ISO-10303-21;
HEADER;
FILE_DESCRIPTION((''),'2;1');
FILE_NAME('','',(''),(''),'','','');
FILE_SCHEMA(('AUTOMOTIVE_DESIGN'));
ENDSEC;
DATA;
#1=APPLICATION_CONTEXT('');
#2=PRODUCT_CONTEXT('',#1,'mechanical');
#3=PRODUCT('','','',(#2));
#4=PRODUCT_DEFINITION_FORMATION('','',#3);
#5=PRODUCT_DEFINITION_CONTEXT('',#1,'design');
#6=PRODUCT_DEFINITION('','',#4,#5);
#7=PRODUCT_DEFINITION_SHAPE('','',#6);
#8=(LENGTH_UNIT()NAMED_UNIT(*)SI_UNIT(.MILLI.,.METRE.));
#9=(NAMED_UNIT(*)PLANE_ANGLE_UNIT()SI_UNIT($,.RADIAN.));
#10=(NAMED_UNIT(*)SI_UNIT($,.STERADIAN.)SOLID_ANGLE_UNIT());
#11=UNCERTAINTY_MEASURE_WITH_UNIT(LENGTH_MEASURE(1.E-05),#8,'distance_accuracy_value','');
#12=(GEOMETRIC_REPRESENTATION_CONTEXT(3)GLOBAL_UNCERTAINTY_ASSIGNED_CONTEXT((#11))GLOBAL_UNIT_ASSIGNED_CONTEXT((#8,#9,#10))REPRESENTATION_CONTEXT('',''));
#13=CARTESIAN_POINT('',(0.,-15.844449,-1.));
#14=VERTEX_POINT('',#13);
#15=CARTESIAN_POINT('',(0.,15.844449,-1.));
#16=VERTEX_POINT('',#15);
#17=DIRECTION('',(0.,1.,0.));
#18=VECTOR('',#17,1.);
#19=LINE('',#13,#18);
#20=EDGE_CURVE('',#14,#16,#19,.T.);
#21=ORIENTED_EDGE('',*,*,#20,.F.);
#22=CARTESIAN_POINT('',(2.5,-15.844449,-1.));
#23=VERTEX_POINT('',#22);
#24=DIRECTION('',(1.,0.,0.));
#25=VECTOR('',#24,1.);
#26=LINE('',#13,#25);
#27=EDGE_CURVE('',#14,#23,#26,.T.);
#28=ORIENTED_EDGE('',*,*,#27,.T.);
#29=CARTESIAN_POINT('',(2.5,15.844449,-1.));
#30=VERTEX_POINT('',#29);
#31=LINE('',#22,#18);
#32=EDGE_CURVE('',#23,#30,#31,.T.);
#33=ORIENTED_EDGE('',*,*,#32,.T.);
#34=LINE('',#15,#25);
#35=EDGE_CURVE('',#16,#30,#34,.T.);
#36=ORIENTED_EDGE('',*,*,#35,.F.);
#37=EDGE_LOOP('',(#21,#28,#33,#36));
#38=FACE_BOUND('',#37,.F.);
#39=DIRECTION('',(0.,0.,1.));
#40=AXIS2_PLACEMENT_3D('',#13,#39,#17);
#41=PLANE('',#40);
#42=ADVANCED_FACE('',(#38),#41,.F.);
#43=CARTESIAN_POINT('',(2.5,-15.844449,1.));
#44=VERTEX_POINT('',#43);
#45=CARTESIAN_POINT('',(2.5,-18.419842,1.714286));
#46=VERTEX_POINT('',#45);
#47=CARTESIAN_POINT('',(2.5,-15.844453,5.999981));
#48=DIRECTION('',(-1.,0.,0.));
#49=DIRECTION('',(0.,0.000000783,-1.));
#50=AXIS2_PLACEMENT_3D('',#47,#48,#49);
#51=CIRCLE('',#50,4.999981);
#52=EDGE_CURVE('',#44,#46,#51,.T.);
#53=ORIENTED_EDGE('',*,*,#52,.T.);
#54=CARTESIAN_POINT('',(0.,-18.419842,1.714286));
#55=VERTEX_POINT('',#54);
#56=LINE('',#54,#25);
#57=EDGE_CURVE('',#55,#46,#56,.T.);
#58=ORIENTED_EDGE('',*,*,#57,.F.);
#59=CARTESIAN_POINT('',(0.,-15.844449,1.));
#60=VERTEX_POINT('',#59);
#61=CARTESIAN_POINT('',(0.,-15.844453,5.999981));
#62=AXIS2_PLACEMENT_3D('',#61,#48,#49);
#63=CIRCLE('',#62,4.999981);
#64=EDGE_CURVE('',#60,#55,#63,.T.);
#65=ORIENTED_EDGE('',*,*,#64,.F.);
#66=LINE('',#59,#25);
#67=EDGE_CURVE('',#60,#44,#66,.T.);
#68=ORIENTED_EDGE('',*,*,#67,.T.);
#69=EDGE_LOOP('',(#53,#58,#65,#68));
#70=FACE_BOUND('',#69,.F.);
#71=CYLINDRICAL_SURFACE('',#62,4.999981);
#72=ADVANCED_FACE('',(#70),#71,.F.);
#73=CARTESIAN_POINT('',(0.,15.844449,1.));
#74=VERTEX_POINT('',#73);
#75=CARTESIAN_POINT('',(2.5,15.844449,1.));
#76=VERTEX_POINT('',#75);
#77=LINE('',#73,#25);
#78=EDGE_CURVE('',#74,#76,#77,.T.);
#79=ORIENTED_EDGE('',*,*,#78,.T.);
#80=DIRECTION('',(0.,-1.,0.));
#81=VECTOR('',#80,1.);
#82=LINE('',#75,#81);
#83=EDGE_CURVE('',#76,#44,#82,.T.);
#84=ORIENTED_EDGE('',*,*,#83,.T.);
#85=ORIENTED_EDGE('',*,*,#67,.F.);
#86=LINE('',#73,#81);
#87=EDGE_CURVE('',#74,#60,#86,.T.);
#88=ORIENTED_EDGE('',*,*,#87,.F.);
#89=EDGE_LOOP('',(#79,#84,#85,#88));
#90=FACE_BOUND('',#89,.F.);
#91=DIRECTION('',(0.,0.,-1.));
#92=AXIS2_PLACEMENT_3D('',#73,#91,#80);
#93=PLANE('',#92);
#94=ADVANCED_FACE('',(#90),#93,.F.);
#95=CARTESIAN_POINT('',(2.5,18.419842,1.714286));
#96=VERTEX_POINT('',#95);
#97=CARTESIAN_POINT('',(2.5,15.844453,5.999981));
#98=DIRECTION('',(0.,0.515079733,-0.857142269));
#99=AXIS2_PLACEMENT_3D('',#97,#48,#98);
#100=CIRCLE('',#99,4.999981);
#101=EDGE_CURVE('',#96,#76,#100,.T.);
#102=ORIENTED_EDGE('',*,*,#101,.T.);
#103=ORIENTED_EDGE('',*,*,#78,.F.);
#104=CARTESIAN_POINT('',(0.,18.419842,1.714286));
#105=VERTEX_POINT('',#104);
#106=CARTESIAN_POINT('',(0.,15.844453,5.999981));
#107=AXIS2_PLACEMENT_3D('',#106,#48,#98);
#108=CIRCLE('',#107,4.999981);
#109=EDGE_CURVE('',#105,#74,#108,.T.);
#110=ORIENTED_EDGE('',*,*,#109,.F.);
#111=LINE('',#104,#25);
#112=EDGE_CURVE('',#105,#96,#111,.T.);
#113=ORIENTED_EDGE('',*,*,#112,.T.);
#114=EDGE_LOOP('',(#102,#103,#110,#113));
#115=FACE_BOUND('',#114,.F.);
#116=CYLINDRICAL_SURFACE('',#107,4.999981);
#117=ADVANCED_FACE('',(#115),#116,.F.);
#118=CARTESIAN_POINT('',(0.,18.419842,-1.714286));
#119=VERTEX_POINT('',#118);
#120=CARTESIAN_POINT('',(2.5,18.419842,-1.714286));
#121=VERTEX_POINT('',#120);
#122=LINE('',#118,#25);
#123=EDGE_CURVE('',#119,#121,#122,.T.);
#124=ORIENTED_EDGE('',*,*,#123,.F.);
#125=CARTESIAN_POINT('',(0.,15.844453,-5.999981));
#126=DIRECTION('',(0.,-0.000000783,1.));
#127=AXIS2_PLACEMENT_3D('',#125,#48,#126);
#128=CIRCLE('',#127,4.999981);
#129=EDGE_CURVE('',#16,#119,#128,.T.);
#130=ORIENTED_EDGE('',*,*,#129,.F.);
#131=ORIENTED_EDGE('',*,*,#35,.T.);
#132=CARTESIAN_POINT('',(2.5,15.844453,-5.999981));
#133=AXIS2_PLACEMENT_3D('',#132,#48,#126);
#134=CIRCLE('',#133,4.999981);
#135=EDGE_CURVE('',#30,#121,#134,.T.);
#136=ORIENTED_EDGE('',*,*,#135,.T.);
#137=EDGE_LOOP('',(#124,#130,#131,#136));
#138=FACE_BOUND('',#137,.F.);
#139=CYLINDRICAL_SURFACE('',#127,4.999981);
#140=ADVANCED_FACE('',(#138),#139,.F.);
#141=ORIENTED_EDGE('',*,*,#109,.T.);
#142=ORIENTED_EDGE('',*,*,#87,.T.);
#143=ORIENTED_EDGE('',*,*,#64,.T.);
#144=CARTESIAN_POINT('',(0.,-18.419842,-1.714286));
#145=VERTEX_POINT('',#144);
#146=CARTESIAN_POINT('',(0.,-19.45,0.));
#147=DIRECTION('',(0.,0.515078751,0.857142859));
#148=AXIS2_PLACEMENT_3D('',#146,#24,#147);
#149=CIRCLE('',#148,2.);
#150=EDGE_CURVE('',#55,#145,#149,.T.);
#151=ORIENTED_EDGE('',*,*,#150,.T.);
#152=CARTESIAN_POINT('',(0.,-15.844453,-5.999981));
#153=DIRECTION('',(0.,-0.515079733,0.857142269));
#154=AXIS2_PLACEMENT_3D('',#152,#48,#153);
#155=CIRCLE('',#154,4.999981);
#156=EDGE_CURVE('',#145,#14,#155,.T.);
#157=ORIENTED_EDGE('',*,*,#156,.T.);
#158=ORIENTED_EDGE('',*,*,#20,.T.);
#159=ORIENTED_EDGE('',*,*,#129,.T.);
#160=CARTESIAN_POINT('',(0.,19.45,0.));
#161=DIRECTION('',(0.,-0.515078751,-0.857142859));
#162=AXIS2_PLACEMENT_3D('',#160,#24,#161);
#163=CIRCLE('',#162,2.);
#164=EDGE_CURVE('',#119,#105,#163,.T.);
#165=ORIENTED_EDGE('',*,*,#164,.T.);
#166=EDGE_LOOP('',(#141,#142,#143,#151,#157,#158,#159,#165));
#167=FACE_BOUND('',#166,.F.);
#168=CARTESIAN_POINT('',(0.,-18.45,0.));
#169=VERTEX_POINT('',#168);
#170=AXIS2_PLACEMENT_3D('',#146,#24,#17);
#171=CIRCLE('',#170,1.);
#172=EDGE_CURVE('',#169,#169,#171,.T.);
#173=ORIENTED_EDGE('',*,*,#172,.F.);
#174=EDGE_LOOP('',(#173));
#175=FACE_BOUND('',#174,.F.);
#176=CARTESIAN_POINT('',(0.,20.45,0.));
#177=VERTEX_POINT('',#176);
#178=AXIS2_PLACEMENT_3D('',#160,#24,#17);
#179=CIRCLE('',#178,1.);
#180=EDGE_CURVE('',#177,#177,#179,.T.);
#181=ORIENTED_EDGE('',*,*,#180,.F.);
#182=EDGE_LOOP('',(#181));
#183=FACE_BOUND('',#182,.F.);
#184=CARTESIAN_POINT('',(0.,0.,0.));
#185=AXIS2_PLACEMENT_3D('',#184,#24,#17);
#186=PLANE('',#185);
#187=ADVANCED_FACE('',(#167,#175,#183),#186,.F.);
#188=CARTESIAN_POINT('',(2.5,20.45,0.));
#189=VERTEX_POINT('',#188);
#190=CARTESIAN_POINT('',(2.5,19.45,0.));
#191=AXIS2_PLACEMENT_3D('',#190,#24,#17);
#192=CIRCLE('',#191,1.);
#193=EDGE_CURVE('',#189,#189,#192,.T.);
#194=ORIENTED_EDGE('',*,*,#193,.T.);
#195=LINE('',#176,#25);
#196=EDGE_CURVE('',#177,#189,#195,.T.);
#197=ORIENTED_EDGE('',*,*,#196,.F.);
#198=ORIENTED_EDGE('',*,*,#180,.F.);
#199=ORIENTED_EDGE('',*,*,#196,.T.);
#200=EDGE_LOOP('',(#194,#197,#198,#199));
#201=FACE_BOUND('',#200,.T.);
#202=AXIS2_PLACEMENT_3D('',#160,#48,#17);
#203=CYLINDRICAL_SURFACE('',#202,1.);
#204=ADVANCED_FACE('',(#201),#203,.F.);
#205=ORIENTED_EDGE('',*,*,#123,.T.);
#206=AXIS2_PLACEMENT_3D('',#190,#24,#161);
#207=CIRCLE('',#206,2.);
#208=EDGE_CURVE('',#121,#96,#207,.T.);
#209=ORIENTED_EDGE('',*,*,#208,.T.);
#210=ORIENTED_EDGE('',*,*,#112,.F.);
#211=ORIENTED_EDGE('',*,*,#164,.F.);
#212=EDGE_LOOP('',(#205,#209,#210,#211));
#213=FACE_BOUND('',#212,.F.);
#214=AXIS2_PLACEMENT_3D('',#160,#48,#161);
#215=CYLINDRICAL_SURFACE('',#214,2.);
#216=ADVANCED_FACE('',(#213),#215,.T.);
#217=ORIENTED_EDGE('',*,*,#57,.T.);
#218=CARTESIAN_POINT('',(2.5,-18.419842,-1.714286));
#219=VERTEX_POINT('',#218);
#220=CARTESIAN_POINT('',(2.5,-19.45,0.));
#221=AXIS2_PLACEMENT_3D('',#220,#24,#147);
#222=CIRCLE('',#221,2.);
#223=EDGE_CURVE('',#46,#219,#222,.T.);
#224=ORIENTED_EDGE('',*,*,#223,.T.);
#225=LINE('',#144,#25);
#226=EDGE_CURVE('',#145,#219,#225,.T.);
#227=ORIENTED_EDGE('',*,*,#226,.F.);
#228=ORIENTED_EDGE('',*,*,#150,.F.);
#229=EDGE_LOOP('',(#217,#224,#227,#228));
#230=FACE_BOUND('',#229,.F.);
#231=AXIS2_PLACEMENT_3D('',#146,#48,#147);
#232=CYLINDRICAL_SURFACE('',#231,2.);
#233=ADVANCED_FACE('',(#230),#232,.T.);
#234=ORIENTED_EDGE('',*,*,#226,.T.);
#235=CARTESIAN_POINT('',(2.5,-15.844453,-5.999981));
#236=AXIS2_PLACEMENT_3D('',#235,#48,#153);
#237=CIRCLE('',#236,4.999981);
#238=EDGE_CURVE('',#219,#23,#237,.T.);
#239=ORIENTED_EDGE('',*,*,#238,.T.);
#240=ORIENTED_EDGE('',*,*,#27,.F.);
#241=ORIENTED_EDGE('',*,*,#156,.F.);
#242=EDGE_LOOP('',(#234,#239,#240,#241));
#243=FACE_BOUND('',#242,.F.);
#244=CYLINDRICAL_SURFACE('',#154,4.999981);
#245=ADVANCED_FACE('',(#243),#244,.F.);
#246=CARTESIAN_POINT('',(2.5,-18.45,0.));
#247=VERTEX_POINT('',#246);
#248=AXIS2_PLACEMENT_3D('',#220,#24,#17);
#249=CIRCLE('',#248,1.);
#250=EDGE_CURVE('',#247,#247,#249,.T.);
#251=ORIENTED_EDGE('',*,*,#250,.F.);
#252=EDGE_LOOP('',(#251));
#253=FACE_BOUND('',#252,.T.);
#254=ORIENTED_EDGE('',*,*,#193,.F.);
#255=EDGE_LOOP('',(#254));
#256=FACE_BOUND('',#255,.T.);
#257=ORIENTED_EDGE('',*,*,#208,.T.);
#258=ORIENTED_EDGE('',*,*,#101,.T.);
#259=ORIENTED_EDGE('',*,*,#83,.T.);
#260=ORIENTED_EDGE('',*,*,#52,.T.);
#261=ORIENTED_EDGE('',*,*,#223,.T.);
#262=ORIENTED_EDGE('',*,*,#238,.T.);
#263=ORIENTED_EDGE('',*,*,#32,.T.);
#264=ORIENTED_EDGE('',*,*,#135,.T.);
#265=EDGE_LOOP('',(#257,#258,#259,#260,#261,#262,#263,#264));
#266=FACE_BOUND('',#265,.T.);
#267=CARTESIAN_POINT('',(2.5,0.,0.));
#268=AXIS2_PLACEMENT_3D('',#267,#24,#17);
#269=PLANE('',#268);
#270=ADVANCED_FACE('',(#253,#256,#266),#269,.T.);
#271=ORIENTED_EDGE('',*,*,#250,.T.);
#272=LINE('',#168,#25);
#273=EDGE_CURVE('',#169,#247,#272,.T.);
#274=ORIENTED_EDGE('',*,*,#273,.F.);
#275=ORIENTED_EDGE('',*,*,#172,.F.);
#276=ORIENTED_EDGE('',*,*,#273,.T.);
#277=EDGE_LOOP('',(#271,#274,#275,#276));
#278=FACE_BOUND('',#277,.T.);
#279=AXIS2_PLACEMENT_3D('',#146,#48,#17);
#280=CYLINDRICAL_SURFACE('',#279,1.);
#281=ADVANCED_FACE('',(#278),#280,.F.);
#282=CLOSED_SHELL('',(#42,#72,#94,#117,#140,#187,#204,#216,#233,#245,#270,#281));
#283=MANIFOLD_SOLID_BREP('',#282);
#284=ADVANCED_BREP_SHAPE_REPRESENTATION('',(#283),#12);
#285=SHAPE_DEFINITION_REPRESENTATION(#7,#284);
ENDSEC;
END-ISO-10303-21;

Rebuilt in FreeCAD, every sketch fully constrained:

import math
import FreeCAD as App
import Part
import Sketcher

V = App.Vector
Q = App.Units.Quantity

doc = App.newDocument("Part")
params = doc.addObject("Spreadsheet::Sheet", "Params")
for row, (alias, value) in enumerate([
    ("sketch1_diameter", "2 mm"),
    ("sketch1_radius", "2 mm"),
    ("pad1_length", "2.5 mm"),
], start=1):
    params.set(f"A{row}", alias)
    params.set(f"B{row}", "=" + value)
    params.setAlias(f"B{row}", alias)

body = doc.addObject("PartDesign::Body", "Body")

# Sketch on YZ plane
sketch1 = doc.addObject("Sketcher::SketchObject", "Sketch")
body.addObject(sketch1)
sketch1.AttachmentSupport = (doc.YZ_Plane, [""])
sketch1.MapMode = "FlatFace"
sketch1.addGeometry([
    Part.LineSegment(V(-15.8, -1, 0), V(15.8, -1, 0)),  # 0
    Part.ArcOfCircle(Part.Circle(V(15.8, -6, 0), V(0, 0, 1), 5), math.radians(59), math.radians(90)),  # 1
    Part.ArcOfCircle(Part.Circle(V(19.4, 0, 0), V(0, 0, 1), 2), math.radians(-121), math.radians(121)),  # 2
    Part.ArcOfCircle(Part.Circle(V(15.8, 6, 0), V(0, 0, 1), 5), math.radians(-90), math.radians(-59)),  # 3
    Part.LineSegment(V(15.8, 1, 0), V(-15.8, 1, 0)),  # 4
    Part.ArcOfCircle(Part.Circle(V(-15.8, 6, 0), V(0, 0, 1), 5), math.radians(-121), math.radians(-90)),  # 5
    Part.ArcOfCircle(Part.Circle(V(-19.4, 0, 0), V(0, 0, 1), 2), math.radians(59), math.radians(301)),  # 6
    Part.ArcOfCircle(Part.Circle(V(-15.8, -6, 0), V(0, 0, 1), 5), math.radians(90), math.radians(121)),  # 7
    Part.Circle(V(-19.4, 0, 0), V(0, 0, 1), 1),  # 8
    Part.Circle(V(19.4, 0, 0), V(0, 0, 1), 1),  # 9
], False)
sketch1.addConstraint([
    Sketcher.Constraint("Tangent", 0, 2, 1, 2),
    Sketcher.Constraint("Tangent", 1, 1, 2, 1),
    Sketcher.Constraint("Tangent", 2, 2, 3, 2),
    Sketcher.Constraint("Tangent", 3, 1, 4, 1),
    Sketcher.Constraint("Tangent", 4, 2, 5, 2),
    Sketcher.Constraint("Tangent", 5, 1, 6, 1),
    Sketcher.Constraint("Tangent", 6, 2, 7, 2),
    Sketcher.Constraint("Tangent", 7, 1, 0, 1),
    Sketcher.Constraint("Horizontal", 0),
    Sketcher.Constraint("Horizontal", 4),
    Sketcher.Constraint("Coincident", 8, 3, 6, 3),
    Sketcher.Constraint("Coincident", 9, 3, 2, 3),
    Sketcher.Constraint("Equal", 1, 3),
    Sketcher.Constraint("Equal", 3, 5),
    Sketcher.Constraint("Equal", 2, 6),
    Sketcher.Constraint("Equal", 5, 7),
    Sketcher.Constraint("Equal", 8, 9),
    Sketcher.Constraint("Symmetric", 1, 3, 5, 3, -1, 1),
    Sketcher.Constraint("Symmetric", 2, 3, 6, 3, -2),
    Sketcher.Constraint("Diameter", 8, Q("2 mm")),
    Sketcher.Constraint("Radius", 2, Q("2 mm")),
    Sketcher.Constraint("DistanceY", 0, 2, -1, 1, Q("1 mm")),
    Sketcher.Constraint("DistanceX", 6, 3, 2, 3, Q("38.899999 mm")),
    Sketcher.Constraint("Radius", 1, Q("4.999981 mm")),
])
sketch1.setExpression("Constraints[19]", "Params.sketch1_diameter")
sketch1.setExpression("Constraints[20]", "Params.sketch1_radius")
pad1 = doc.addObject("PartDesign::Pad", "Pad")
body.addObject(pad1)
pad1.Profile = sketch1
pad1.setExpression("Length", "Params.pad1_length")

doc.recompute()
